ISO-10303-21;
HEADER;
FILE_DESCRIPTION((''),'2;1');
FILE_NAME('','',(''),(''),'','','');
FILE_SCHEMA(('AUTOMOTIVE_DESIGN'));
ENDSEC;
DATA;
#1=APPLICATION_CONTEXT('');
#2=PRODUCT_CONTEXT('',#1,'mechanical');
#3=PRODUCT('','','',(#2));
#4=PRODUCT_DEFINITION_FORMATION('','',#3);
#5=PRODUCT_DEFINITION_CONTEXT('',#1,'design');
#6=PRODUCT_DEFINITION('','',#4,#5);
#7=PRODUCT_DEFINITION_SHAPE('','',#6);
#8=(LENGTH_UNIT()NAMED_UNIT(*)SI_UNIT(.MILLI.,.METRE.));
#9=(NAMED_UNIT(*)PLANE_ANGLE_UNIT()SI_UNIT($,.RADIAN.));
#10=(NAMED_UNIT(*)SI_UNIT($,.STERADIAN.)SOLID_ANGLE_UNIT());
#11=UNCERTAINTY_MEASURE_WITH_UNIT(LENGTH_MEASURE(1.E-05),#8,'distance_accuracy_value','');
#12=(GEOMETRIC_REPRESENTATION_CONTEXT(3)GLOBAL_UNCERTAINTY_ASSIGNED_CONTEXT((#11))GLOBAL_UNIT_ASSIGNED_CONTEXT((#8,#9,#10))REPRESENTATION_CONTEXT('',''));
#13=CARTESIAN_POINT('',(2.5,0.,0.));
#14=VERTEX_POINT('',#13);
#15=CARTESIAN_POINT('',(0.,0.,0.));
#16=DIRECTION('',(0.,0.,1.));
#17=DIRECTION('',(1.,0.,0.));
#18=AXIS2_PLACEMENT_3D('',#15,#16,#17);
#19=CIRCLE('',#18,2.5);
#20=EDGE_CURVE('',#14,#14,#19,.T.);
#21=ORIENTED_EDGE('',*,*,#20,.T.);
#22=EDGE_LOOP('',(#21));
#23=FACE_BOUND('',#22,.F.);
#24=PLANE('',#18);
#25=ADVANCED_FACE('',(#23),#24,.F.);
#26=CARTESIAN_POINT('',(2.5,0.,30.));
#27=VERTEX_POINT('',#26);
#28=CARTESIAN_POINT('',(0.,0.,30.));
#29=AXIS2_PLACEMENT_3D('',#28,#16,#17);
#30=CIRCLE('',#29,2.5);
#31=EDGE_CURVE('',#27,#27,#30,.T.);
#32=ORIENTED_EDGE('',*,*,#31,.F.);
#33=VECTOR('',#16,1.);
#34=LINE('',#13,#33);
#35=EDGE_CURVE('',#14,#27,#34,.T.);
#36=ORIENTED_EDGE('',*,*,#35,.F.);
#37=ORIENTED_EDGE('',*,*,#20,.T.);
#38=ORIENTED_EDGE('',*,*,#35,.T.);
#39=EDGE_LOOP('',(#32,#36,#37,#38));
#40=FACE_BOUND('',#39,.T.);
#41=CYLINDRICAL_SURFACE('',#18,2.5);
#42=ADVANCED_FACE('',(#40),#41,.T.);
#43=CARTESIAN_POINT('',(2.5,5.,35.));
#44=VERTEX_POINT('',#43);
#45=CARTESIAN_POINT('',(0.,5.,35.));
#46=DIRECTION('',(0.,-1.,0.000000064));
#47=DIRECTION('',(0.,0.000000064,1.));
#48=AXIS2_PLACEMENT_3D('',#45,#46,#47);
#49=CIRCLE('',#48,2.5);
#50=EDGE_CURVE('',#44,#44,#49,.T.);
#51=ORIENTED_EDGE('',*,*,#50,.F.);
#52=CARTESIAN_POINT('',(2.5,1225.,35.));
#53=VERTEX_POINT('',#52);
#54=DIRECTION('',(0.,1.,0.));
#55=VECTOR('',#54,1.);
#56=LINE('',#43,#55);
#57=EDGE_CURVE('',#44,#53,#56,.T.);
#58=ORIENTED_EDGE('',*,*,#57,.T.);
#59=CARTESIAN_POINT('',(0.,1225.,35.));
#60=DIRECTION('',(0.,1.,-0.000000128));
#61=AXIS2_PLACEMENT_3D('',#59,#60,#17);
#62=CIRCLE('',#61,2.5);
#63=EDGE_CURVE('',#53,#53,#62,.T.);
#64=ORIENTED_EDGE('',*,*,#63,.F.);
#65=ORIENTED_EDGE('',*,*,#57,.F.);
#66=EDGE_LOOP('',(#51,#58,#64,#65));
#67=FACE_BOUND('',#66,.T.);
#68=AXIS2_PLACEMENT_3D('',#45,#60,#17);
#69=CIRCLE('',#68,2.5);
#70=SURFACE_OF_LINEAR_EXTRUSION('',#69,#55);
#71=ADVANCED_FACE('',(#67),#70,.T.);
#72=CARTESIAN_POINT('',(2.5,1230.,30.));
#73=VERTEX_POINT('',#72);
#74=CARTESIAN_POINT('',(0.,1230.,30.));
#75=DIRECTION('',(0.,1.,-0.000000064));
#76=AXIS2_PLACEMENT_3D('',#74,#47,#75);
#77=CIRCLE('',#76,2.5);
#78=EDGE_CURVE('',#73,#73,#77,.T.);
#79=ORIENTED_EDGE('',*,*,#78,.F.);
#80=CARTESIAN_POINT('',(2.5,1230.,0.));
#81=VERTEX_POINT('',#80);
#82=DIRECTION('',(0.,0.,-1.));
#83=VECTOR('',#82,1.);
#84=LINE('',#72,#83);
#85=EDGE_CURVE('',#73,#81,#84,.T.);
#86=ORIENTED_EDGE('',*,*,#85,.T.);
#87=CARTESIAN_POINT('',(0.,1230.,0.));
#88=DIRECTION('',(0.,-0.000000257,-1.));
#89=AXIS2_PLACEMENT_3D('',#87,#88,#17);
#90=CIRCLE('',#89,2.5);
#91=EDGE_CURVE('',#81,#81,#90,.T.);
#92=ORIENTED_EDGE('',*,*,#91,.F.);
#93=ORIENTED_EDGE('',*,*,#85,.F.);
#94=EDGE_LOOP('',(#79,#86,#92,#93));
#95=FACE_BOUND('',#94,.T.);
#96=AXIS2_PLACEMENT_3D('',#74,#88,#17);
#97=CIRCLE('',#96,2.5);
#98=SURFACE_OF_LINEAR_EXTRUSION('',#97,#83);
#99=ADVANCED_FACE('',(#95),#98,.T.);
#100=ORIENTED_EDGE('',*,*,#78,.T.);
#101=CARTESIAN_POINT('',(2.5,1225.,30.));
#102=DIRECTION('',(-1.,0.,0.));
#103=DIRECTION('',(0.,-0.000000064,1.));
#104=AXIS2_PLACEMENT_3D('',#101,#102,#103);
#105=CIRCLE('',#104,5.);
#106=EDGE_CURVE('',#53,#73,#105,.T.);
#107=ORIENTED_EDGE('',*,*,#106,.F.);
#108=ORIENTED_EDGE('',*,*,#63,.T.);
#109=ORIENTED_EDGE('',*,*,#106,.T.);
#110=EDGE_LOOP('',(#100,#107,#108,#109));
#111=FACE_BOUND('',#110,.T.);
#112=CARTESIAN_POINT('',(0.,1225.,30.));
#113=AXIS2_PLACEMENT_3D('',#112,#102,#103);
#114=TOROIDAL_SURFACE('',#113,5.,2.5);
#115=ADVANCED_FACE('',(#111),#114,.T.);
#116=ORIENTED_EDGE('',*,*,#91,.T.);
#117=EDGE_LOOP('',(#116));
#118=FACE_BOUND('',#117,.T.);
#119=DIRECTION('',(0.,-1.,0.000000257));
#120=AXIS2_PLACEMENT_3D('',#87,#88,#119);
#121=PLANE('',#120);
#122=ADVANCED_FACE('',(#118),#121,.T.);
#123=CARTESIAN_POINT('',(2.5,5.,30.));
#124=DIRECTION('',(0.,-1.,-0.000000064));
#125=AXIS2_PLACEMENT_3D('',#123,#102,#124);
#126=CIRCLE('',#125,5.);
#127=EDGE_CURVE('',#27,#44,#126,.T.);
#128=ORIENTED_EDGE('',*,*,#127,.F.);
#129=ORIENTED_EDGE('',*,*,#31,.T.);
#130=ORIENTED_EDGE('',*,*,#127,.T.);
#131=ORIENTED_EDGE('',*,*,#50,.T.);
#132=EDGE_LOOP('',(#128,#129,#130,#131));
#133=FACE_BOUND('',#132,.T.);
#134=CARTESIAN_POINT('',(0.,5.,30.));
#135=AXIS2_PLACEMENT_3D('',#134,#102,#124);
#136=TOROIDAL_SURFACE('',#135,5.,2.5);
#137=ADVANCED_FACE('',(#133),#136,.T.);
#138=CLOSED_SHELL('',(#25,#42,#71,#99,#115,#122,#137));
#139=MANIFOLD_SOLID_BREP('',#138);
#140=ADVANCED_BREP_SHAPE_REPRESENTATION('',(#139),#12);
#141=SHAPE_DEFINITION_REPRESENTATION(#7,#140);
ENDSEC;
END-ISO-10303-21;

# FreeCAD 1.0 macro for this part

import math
import FreeCAD as App
import Part
import Sketcher

V = App.Vector

doc = App.newDocument("Part")
params = doc.addObject("Spreadsheet::Sheet", "Params")
for row, (alias, value) in enumerate([
    ("sketch1_diameter", "5 mm"),
    ("sketch2_radius", "5 mm"),
    ("sketch2_width", "1220 mm"),
    ("sketch2_height", "30 mm"),
], start=1):
    params.set(f"A{row}", alias)
    params.set(f"B{row}", "=" + value)
    params.setAlias(f"B{row}", alias)

body = doc.addObject("PartDesign::Body", "Body")

sketch1 = body.newObject("Sketcher::SketchObject", "Sketch")
sketch1.AttachmentSupport = (doc.getObject("XY_Plane"), [""])
sketch1.MapMode = "FlatFace"
sketch1.addGeometry(Part.Circle(V(0, 0, 0), V(0, 0, 1), 2.5), False)
sketch1.addConstraint([
    Sketcher.Constraint("Coincident", 0, 3, -1, 1),
    Sketcher.Constraint("Diameter", 0, 5.0),
])
sketch1.setExpression("Constraints[1]", "Params.sketch1_diameter")

sketch2 = body.newObject("Sketcher::SketchObject", "Sketch001")
sketch2.AttachmentSupport = (doc.getObject("YZ_Plane"), [""])
sketch2.MapMode = "FlatFace"
sketch2.addGeometry([
    Part.LineSegment(V(0, 0, 0), V(0, 30, 0)),
    Part.ArcOfCircle(Part.Circle(V(5, 30, 0), V(0, 0, 1), 5), math.radians(89.999996), math.radians(180.000004)),
    Part.LineSegment(V(5, 35, 0), V(1225, 35, 0)),
    Part.ArcOfCircle(Part.Circle(V(1225, 30, 0), V(0, 0, 1), 5), math.radians(-0.000004), math.radians(90.000004)),
    Part.LineSegment(V(1230, 30, 0), V(1230, 0, 0)),
], False)
sketch2.addConstraint([
    Sketcher.Constraint("Tangent", 0, 2, 1, 2),
    Sketcher.Constraint("Tangent", 1, 1, 2, 1),
    Sketcher.Constraint("Tangent", 2, 2, 3, 2),
    Sketcher.Constraint("Tangent", 3, 1, 4, 1),
    Sketcher.Constraint("Vertical", 0),
    Sketcher.Constraint("Horizontal", 2),
    Sketcher.Constraint("Vertical", 4),
    Sketcher.Constraint("Coincident", 0, 1, -1, 1),
    Sketcher.Constraint("Equal", 1, 3),
    Sketcher.Constraint("PointOnObject", 4, 2, -1),
    Sketcher.Constraint("Radius", 1, 5.0),
    Sketcher.Constraint("DistanceX", 2, 1, 2, 2, 1220.0),
    Sketcher.Constraint("DistanceY", 0, 1, 0, 2, 30.0),
])
sketch2.setExpression("Constraints[10]", "Params.sketch2_radius")
sketch2.setExpression("Constraints[11]", "Params.sketch2_width")
sketch2.setExpression("Constraints[12]", "Params.sketch2_height")
doc.recompute()

additivepipe = body.newObject("PartDesign::AdditivePipe", "AdditivePipe")
additivepipe.Profile = sketch1
additivepipe.Spine = (sketch2, ["Edge1", "Edge2", "Edge3", "Edge4", "Edge5"])

doc.recompute()
